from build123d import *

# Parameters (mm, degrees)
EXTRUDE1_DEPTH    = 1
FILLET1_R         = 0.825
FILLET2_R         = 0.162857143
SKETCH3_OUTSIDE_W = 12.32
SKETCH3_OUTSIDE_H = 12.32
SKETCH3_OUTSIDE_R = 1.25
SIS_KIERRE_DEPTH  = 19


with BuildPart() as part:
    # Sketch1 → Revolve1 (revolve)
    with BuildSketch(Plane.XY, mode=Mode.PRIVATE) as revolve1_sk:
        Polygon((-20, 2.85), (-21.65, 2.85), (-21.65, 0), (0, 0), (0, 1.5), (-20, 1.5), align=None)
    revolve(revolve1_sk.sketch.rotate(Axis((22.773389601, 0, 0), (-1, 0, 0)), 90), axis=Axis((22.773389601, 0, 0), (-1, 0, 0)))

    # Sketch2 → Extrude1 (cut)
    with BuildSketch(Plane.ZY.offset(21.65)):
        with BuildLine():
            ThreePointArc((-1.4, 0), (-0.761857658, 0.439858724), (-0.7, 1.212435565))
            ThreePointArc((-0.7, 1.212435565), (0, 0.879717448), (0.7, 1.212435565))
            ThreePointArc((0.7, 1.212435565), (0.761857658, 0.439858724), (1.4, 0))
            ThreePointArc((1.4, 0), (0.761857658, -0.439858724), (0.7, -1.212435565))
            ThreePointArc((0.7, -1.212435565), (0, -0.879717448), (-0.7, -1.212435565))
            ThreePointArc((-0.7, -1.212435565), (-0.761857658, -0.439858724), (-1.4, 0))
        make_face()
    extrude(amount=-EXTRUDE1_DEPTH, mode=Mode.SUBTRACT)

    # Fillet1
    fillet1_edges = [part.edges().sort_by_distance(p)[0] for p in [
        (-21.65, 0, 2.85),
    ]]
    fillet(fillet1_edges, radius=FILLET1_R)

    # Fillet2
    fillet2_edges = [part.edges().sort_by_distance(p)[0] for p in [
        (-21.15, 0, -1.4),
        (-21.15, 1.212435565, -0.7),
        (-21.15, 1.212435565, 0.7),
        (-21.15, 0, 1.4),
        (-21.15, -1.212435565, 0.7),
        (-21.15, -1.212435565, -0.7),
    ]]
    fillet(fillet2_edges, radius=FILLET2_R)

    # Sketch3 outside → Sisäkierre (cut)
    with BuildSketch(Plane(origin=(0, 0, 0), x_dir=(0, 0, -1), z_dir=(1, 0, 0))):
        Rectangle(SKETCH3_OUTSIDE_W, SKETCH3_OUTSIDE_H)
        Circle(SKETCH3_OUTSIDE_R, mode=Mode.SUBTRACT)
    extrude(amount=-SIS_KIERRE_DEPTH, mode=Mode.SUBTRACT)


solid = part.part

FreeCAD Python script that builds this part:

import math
import FreeCAD as App
import Part
import Sketcher

V = App.Vector
Q = App.Units.Quantity


def edges_at(feature, points):
    """Names of the edges that pass closest to the given points."""
    edges = feature.Shape.Edges
    near = lambda p: min(range(len(edges)), key=lambda i: edges[i].distToShape(Part.Vertex(*p))[0])
    return sorted({f"Edge{near(p) + 1}" for p in points})


def add_polygon(sketch, points):
    """Adds a closed chain of lines whose ends are joined by coincident constraints."""
    first, n = sketch.GeometryCount, len(points)
    for a, b in zip(points, points[1:] + points[:1]):
        sketch.addGeometry(Part.LineSegment(App.Vector(*a, 0), App.Vector(*b, 0)), False)
    for i in range(n):
        sketch.addConstraint(Sketcher.Constraint("Coincident", first + i, 2, first + (i + 1) % n, 1))

doc = App.newDocument("Part")
body = doc.addObject("PartDesign::Body", "Body")

# Sketch on XY plane
sketch1 = body.newObject("Sketcher::SketchObject", "Sketch")
sketch1.AttachmentSupport = (doc.getObject("XY_Plane"), [""])
sketch1.MapMode = "FlatFace"
add_polygon(sketch1, [(-20, 2.9), (-21.6, 2.9), (-21.6, 0), (0, 0), (0, 1.5), (-20, 1.5)])  # lines 0-5
sketch1.addConstraint(Sketcher.Constraint("Horizontal", 0))
sketch1.addConstraint(Sketcher.Constraint("Vertical", 1))
sketch1.addConstraint(Sketcher.Constraint("Horizontal", 2))
sketch1.addConstraint(Sketcher.Constraint("Vertical", 3))
sketch1.addConstraint(Sketcher.Constraint("Horizontal", 4))
sketch1.addConstraint(Sketcher.Constraint("Vertical", 5))
sketch1.addConstraint(Sketcher.Constraint("Coincident", 2, 2, -1, 1))
sketch1.addConstraint(Sketcher.Constraint("DistanceX", 4, 2, 4, 1, Q("20 mm")))
sketch1.addConstraint(Sketcher.Constraint("DistanceY", 3, 1, 3, 2, Q("1.5 mm")))
sketch1.addConstraint(Sketcher.Constraint("DistanceX", 0, 2, 0, 1, Q("1.65 mm")))
sketch1.addConstraint(Sketcher.Constraint("DistanceY", 1, 2, 1, 1, Q("2.85 mm")))
revolution = body.newObject("PartDesign::Revolution", "Revolution")
revolution.Profile = sketch1
revolution.ReferenceAxis = (sketch1, ["H_Axis"])
revolution.Angle = 360

# Sketch on YZ plane
sketch2 = body.newObject("Sketcher::SketchObject", "Sketch001")
sketch2.AttachmentSupport = (doc.getObject("YZ_Plane"), [""])
sketch2.MapMode = "FlatFace"
sketch2.AttachmentOffset = App.Placement(V(0, 0, -21.65), App.Rotation())
sketch2.addGeometry(Part.ArcOfCircle(Part.Circle(V(0.9, -1.5, 0), V(0, 0, 1), 0.9), math.radians(69), math.radians(171)), False)
sketch2.addGeometry(Part.ArcOfCircle(Part.Circle(V(-0.9, -1.5, 0), V(0, 0, 1), 0.9), math.radians(9), math.radians(111)), False)
sketch2.addGeometry(Part.ArcOfCircle(Part.Circle(V(-1.8, 0, 0), V(0, 0, 1), 0.9), math.radians(-51), math.radians(51)), False)
sketch2.addGeometry(Part.ArcOfCircle(Part.Circle(V(-0.9, 1.5, 0), V(0, 0, 1), 0.9), math.radians(-111), math.radians(-9)), False)
sketch2.addGeometry(Part.ArcOfCircle(Part.Circle(V(0.9, 1.5, 0), V(0, 0, 1), 0.9), math.radians(-171), math.radians(-69)), False)
sketch2.addGeometry(Part.ArcOfCircle(Part.Circle(V(1.8, 0, 0), V(0, 0, 1), 0.9), math.radians(129), math.radians(231)), False)
sketch2.addConstraint(Sketcher.Constraint("Coincident", 0, 2, 1, 1))
sketch2.addConstraint(Sketcher.Constraint("Coincident", 1, 2, 2, 1))
sketch2.addConstraint(Sketcher.Constraint("Coincident", 2, 2, 3, 1))
sketch2.addConstraint(Sketcher.Constraint("Coincident", 3, 2, 4, 1))
sketch2.addConstraint(Sketcher.Constraint("Coincident", 4, 2, 5, 1))
sketch2.addConstraint(Sketcher.Constraint("Coincident", 5, 2, 0, 1))
sketch2.addConstraint(Sketcher.Constraint("Equal", 0, 1))
sketch2.addConstraint(Sketcher.Constraint("Equal", 1, 2))
sketch2.addConstraint(Sketcher.Constraint("Equal", 2, 3))
sketch2.addConstraint(Sketcher.Constraint("Equal", 3, 4))
sketch2.addConstraint(Sketcher.Constraint("Equal", 4, 5))
sketch2.addConstraint(Sketcher.Constraint("Symmetric", 0, 3, 3, 3, -1, 1))
sketch2.addConstraint(Sketcher.Constraint("Symmetric", 1, 3, 4, 3, -1, 1))
sketch2.addConstraint(Sketcher.Constraint("Symmetric", 2, 3, 5, 3, -1, 1))
sketch2.addConstraint(Sketcher.Constraint("Symmetric", 0, 3, 1, 3, -2))
sketch2.addConstraint(Sketcher.Constraint("PointOnObject", 2, 3, -1))
sketch2.addConstraint(Sketcher.Constraint("DistanceY", 0, 2, -1, 1, Q("1.4 mm")))
sketch2.addConstraint(Sketcher.Constraint("DistanceY", 1, 2, -1, 1, Q("0.7 mm")))
sketch2.addConstraint(Sketcher.Constraint("Radius", 0, Q("0.902718 mm")))
sketch2.addConstraint(Sketcher.Constraint("DistanceY", 1, 3, 3, 3, Q("3.087269 mm")))
pocket1 = body.newObject("PartDesign::Pocket", "Pocket")
pocket1.Profile = sketch2
pocket1.Length = 1
pocket1.Reversed = True
doc.recompute()

fillet = body.newObject("PartDesign::Fillet", "Fillet")
fillet.Base = (pocket1, edges_at(pocket1, [(-21.65, 0, 2.85)]))
fillet.Radius = 0.825
doc.recompute()

fillet2 = body.newObject("PartDesign::Fillet", "Fillet001")
fillet2.Base = (fillet, edges_at(fillet, [
    (-21.15, 0, -1.4),
    (-21.15, 1.212, -0.7),
    (-21.15, 1.212, 0.7),
    (-21.15, 0, 1.4),
    (-21.15, -1.212, 0.7),
    (-21.15, -1.212, -0.7),
]))
fillet2.Radius = 0.162857

# Sketch on YZ plane
sketch3 = body.newObject("Sketcher::SketchObject", "Sketch002")
sketch3.AttachmentSupport = (doc.getObject("YZ_Plane"), [""])
sketch3.MapMode = "FlatFace"
add_polygon(sketch3, [(6.2, 6.2), (-6.2, 6.2), (-6.2, -6.2), (6.2, -6.2)])  # lines 0-3
sketch3.addGeometry(Part.Circle(V(0, 0, 0), V(0, 0, 1), 1.2), False)  # 4
sketch3.addConstraint(Sketcher.Constraint("Horizontal", 0))
sketch3.addConstraint(Sketcher.Constraint("Vertical", 1))
sketch3.addConstraint(Sketcher.Constraint("Horizontal", 2))
sketch3.addConstraint(Sketcher.Constraint("Vertical", 3))
sketch3.addConstraint(Sketcher.Constraint("Coincident", 4, 3, -1, 1))
sketch3.addConstraint(Sketcher.Constraint("Symmetric", 0, 2, 2, 2, -1, 1))
sketch3.addConstraint(Sketcher.Constraint("Equal", 2, 1))
sketch3.addConstraint(Sketcher.Constraint("Diameter", 4, Q("2.5 mm")))
sketch3.addConstraint(Sketcher.Constraint("DistanceX", 0, 2, 0, 1, Q("12.32 mm")))
pocket2 = body.newObject("PartDesign::Pocket", "Pocket001")
pocket2.Profile = sketch3
pocket2.Length = 19

doc.recompute()
